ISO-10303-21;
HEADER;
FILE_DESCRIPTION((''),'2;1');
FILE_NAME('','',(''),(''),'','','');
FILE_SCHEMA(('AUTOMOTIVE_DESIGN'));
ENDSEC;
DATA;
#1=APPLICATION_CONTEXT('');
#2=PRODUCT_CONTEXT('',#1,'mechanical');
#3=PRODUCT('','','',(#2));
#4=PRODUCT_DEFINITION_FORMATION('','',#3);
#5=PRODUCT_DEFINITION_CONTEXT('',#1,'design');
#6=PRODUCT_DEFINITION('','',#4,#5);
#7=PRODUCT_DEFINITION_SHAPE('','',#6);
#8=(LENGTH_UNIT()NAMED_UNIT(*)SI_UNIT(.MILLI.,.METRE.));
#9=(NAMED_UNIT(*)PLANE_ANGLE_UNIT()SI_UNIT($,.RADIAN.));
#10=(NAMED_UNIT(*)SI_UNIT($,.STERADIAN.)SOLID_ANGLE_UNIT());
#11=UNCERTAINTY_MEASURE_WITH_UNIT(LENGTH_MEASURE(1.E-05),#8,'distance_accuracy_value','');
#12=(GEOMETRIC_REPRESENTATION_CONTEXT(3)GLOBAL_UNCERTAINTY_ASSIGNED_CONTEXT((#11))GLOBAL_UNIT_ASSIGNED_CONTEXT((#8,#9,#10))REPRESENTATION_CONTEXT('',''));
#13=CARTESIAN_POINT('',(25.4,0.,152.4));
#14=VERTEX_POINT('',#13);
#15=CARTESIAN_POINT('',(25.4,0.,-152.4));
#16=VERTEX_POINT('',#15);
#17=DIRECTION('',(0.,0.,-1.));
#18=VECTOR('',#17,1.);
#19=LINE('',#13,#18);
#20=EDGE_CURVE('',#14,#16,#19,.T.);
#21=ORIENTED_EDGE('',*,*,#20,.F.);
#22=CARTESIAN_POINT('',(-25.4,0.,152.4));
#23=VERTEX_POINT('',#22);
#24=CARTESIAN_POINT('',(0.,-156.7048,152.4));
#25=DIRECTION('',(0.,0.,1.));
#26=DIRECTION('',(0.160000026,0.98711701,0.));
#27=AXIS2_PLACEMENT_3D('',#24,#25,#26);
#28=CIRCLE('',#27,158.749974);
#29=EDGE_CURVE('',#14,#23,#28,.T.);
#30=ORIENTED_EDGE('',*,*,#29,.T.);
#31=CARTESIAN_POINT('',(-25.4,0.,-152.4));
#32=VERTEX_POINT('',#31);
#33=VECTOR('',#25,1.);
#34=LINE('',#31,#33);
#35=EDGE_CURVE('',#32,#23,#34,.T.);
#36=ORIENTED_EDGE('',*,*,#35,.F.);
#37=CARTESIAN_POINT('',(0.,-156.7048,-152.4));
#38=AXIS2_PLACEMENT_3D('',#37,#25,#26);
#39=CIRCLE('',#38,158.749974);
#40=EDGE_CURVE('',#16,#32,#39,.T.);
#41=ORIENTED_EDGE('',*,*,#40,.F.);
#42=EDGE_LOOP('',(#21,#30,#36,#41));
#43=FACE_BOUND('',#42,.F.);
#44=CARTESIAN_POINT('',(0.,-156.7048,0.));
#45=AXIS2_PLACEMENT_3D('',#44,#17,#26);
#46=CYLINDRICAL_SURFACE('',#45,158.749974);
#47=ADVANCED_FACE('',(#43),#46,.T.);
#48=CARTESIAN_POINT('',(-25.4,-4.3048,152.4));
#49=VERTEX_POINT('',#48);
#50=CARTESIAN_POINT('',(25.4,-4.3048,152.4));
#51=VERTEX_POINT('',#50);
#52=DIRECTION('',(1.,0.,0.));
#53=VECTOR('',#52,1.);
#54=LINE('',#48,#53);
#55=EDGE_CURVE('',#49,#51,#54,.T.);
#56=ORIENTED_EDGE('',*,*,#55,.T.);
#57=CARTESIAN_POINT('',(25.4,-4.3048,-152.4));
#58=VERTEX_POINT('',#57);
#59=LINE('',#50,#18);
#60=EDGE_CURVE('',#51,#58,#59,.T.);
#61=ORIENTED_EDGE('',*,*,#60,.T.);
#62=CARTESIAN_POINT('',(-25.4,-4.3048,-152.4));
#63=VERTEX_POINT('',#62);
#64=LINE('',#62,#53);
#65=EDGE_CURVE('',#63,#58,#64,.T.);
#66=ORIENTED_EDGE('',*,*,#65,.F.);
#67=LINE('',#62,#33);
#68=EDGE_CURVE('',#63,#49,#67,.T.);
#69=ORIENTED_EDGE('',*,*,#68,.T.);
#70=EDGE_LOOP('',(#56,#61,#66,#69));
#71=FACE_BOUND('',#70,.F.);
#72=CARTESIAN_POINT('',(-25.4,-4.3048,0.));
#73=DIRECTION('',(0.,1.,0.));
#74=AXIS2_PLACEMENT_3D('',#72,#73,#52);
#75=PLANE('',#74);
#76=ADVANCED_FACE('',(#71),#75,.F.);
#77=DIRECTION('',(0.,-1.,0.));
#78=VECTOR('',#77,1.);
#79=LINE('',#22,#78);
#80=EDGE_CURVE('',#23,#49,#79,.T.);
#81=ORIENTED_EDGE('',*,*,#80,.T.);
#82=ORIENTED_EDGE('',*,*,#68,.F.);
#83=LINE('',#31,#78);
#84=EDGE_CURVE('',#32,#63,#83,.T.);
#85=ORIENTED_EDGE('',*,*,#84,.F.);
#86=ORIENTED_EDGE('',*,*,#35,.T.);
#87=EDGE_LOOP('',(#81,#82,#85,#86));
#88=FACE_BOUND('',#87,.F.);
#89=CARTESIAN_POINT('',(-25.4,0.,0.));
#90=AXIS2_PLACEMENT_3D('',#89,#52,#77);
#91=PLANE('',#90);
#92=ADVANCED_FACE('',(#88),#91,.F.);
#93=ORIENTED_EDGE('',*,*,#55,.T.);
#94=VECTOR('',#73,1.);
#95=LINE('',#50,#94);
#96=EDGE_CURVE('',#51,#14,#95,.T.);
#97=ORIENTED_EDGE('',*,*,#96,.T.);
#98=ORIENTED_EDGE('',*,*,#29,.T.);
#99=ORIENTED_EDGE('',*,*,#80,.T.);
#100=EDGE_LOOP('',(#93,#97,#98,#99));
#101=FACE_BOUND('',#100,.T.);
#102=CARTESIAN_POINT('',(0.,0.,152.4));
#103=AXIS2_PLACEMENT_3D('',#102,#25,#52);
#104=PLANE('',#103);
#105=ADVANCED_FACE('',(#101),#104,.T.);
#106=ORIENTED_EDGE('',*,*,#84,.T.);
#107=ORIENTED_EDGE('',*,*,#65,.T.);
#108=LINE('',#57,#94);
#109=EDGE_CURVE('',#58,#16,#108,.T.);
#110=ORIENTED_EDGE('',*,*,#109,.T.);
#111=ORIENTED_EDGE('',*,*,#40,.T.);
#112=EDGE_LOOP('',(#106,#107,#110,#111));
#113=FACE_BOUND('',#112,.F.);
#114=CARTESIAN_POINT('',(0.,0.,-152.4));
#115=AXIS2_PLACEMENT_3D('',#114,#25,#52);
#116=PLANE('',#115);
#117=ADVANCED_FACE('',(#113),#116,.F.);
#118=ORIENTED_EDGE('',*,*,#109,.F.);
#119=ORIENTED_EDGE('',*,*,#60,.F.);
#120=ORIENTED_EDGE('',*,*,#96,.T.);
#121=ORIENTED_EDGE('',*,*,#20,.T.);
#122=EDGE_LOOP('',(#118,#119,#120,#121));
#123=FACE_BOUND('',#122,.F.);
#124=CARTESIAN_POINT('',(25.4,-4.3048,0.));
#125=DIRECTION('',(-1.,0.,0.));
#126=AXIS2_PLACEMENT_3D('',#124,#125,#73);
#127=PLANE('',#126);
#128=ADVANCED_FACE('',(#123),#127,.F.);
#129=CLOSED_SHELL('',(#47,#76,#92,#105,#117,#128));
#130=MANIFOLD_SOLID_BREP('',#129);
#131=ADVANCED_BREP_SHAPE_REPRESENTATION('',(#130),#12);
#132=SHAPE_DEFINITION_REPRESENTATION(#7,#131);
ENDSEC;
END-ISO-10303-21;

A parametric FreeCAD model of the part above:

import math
import FreeCAD as App
import Part
import Sketcher
Q = App.Units.Quantity

doc = App.newDocument("Part")
body = doc.addObject("PartDesign::Body", "Body")

# Sketch on XY plane
sketch1 = body.newObject("Sketcher::SketchObject", "Sketch")
sketch1.AttachmentSupport = (doc.getObject("XY_Plane"), [""])
sketch1.MapMode = "FlatFace"
sketch1.addGeometry(Part.ArcOfCircle(Part.Circle(App.Vector(0, -156.7048, 0), App.Vector(0, 0, 1), 158.749974), math.radians(80.793102), math.radians(99.206898)), False)
sketch1.addGeometry(Part.LineSegment(App.Vector(-25.4, 0, 0), App.Vector(-25.4, -4.3048, 0)), False)
sketch1.addGeometry(Part.LineSegment(App.Vector(-25.4, -4.3048, 0), App.Vector(25.4, -4.3048, 0)), False)
sketch1.addGeometry(Part.LineSegment(App.Vector(25.4, -4.3048, 0), App.Vector(25.4, 0, 0)), False)
sketch1.addConstraint(Sketcher.Constraint("Coincident", 0, 2, 1, 1))
sketch1.addConstraint(Sketcher.Constraint("Coincident", 1, 2, 2, 1))
sketch1.addConstraint(Sketcher.Constraint("Coincident", 2, 2, 3, 1))
sketch1.addConstraint(Sketcher.Constraint("Coincident", 3, 2, 0, 1))
sketch1.addConstraint(Sketcher.Constraint("Vertical", 1))
sketch1.addConstraint(Sketcher.Constraint("Horizontal", 2))
sketch1.addConstraint(Sketcher.Constraint("Vertical", 3))
sketch1.addConstraint(Sketcher.Constraint("Symmetric", 0, 2, 3, 2, -1, 1))
sketch1.addConstraint(Sketcher.Constraint("PointOnObject", 0, 3, -2))
sketch1.addConstraint(Sketcher.Constraint("Radius", 0, Q("6.25 in")))
sketch1.addConstraint(Sketcher.Constraint("DistanceX", 0, 2, -1, 1, Q("1 in")))
sketch1.addConstraint(Sketcher.Constraint("DistanceY", 0, 3, 1, 2, Q("6 in")))
pad1 = body.newObject("PartDesign::Pad", "Pad")
pad1.Profile = sketch1
pad1.Length = Q("12 in")
pad1.Midplane = True

doc.recompute()
